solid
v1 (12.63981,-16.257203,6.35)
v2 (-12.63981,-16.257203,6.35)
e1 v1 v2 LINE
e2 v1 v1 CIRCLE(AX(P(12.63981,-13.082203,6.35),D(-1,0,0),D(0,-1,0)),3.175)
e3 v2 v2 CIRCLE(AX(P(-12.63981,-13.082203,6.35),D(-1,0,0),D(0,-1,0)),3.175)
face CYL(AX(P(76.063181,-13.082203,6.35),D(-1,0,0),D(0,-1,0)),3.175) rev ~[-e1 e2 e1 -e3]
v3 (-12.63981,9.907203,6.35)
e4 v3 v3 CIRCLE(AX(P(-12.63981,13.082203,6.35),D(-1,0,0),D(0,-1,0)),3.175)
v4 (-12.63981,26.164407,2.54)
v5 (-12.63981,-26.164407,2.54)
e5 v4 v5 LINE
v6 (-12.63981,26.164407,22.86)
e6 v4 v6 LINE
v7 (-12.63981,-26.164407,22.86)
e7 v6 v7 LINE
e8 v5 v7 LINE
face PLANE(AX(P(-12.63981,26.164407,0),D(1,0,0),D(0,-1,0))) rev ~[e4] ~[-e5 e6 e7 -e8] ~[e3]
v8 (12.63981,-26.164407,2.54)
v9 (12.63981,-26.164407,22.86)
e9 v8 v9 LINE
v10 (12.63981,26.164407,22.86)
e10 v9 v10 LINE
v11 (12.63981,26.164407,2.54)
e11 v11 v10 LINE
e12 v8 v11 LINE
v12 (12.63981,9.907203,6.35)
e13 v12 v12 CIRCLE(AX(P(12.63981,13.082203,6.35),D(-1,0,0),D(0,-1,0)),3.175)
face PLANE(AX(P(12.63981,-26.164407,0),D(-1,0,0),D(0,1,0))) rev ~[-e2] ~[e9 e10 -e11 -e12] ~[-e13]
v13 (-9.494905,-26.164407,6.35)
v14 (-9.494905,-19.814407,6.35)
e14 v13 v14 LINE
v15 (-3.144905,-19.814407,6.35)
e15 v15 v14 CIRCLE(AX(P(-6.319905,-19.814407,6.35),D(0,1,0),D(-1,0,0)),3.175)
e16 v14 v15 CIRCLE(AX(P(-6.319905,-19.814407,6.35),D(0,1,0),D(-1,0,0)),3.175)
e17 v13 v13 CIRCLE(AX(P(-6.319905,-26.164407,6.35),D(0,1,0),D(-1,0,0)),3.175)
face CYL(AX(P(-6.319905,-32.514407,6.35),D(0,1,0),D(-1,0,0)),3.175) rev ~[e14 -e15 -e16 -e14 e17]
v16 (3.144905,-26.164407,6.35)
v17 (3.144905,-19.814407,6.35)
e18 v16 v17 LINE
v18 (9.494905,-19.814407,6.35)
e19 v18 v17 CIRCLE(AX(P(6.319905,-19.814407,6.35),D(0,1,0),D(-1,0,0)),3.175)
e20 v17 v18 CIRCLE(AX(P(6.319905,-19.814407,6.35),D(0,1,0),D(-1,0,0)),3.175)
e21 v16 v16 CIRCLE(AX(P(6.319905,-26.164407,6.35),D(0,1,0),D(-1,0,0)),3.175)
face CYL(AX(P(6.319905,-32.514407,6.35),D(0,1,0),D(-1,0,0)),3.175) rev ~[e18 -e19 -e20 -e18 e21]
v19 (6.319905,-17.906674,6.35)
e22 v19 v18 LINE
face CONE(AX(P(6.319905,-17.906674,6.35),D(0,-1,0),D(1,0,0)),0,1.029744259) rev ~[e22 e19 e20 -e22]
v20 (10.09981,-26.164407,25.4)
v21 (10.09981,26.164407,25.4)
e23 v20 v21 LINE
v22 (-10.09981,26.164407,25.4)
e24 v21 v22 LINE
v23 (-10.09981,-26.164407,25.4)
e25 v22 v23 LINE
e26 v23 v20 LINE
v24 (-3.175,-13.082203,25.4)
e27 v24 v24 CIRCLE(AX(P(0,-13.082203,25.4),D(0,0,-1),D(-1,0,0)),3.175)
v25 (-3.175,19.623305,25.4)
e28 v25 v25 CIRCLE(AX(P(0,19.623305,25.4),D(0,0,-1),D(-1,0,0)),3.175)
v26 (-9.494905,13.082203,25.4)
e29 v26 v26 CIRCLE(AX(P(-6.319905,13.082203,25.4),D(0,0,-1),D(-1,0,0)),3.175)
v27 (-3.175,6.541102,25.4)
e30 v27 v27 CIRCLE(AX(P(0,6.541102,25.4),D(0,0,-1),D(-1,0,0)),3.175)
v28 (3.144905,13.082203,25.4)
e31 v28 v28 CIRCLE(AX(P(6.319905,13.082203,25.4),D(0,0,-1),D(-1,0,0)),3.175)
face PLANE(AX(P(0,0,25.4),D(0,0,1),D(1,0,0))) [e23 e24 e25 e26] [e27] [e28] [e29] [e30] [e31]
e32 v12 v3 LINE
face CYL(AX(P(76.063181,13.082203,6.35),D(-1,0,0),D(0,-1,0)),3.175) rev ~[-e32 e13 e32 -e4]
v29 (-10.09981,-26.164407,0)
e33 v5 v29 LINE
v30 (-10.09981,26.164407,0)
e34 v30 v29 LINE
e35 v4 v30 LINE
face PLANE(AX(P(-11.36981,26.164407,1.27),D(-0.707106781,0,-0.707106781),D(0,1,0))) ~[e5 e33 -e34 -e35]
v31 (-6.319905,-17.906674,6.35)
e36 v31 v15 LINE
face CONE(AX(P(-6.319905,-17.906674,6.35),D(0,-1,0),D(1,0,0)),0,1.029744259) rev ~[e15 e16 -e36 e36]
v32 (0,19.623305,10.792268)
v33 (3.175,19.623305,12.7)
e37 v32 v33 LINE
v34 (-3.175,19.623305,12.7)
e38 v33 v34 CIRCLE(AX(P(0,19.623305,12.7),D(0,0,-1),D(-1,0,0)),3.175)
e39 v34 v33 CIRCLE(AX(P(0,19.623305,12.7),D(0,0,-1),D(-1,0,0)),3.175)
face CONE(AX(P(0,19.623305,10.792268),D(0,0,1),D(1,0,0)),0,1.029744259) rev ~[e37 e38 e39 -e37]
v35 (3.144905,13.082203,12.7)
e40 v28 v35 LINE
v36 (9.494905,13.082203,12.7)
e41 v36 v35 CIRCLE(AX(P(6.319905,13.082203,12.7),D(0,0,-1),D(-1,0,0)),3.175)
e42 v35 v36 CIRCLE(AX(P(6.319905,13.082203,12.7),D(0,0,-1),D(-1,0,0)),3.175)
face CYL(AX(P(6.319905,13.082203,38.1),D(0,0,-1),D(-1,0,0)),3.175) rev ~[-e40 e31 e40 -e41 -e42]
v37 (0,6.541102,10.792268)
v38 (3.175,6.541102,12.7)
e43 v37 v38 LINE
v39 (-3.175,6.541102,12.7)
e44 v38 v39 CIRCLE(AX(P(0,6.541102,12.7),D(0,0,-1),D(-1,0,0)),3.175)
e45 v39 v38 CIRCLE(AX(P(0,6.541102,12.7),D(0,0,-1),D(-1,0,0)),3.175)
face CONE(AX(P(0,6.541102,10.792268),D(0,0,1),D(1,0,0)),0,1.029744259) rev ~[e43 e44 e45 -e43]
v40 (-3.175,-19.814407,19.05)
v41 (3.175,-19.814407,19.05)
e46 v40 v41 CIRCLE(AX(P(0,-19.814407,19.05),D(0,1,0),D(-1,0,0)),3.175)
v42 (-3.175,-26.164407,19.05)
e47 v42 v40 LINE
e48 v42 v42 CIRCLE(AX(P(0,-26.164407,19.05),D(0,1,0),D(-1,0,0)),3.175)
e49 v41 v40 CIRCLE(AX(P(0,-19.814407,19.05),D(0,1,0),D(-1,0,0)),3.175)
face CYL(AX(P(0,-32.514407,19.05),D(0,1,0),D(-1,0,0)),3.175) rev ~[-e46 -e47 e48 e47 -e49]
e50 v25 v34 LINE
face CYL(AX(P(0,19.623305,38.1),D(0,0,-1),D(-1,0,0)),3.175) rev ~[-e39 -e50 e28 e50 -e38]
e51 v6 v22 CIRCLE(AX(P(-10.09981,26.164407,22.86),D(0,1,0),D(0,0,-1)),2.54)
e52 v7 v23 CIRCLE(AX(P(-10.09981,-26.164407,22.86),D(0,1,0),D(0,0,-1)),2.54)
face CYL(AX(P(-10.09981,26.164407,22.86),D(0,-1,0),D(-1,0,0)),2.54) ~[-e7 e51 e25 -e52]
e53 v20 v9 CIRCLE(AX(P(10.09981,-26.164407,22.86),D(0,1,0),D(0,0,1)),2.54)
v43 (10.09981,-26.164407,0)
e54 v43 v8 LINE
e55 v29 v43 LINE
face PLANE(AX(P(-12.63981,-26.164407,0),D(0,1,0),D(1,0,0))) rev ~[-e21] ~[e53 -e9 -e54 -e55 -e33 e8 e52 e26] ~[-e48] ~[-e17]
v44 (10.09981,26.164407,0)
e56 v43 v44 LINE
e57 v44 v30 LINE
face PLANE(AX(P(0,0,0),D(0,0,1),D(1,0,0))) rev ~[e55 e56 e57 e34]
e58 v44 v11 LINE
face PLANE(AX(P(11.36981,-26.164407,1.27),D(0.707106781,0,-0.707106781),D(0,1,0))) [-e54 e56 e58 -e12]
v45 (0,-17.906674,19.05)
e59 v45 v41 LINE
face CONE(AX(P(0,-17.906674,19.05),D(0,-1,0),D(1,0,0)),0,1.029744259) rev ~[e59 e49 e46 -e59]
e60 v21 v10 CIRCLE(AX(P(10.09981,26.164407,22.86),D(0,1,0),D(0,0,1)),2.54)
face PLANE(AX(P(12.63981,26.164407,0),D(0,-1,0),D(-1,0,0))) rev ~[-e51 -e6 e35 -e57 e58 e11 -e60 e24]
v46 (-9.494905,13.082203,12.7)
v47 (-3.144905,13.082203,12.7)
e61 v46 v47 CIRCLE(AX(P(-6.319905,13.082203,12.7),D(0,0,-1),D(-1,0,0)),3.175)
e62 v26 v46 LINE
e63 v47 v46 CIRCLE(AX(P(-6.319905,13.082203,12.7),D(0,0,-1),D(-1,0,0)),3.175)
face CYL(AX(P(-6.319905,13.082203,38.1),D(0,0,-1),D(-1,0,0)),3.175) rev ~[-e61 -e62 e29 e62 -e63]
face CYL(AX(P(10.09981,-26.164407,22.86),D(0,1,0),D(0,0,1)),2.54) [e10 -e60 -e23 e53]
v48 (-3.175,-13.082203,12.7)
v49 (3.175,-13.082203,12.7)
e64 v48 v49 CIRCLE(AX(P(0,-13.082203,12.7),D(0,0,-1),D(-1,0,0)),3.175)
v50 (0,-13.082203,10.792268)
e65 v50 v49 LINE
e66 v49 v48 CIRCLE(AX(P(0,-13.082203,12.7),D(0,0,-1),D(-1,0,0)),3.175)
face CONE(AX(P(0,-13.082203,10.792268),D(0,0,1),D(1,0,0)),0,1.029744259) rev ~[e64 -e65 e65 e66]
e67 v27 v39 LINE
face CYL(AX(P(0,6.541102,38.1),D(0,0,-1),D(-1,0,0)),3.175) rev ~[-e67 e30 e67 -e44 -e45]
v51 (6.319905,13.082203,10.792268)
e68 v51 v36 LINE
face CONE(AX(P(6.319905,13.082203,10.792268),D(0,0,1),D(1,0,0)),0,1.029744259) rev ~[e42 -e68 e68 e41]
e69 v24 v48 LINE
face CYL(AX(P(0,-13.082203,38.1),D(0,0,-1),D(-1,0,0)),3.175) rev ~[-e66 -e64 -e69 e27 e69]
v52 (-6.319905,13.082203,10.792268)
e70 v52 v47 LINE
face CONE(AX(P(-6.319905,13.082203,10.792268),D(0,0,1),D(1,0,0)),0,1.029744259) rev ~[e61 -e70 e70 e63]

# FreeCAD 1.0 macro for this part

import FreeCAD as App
import Part
import Sketcher

V = App.Vector
Q = App.Units.Quantity


def edges_at(feature, points):
    """Names of the edges that pass closest to the given points."""
    edges = feature.Shape.Edges
    near = lambda p: min(range(len(edges)), key=lambda i: edges[i].distToShape(Part.Vertex(*p))[0])
    return sorted({f"Edge{near(p) + 1}" for p in points})

doc = App.newDocument("Part")
body = doc.addObject("PartDesign::Body", "Body")

# Sketch on XY plane
sketch1 = doc.addObject("Sketcher::SketchObject", "Sketch")
body.addObject(sketch1)
sketch1.AttachmentSupport = (doc.XY_Plane, [""])
sketch1.MapMode = "FlatFace"
sketch1.addGeometry([
    Part.LineSegment(V(-13, -26, 0), V(13, -26, 0)),
    Part.LineSegment(V(13, -26, 0), V(13, 26, 0)),
    Part.LineSegment(V(13, 26, 0), V(-13, 26, 0)),
    Part.LineSegment(V(-13, 26, 0), V(-13, -26, 0)),
], False)
sketch1.addConstraint([
    Sketcher.Constraint("Coincident", 0, 2, 1, 1),
    Sketcher.Constraint("Coincident", 1, 2, 2, 1),
    Sketcher.Constraint("Coincident", 2, 2, 3, 1),
    Sketcher.Constraint("Coincident", 3, 2, 0, 1),
    Sketcher.Constraint("Horizontal", 0),
    Sketcher.Constraint("Vertical", 1),
    Sketcher.Constraint("Horizontal", 2),
    Sketcher.Constraint("Vertical", 3),
    Sketcher.Constraint("Symmetric", 0, 2, 2, 2, -1, 1),
    Sketcher.Constraint("DistanceX", 0, 1, 0, 2, 25.279621),
    Sketcher.Constraint("DistanceY", 1, 1, 1, 2, 52.328814),
])
pad1 = doc.addObject("PartDesign::Pad", "Pad")
body.addObject(pad1)
pad1.Profile = sketch1
pad1.Length = Q("1 in")

# Sketch on YZ plane
sketch2 = doc.addObject("Sketcher::SketchObject", "Sketch001")
body.addObject(sketch2)
sketch2.AttachmentSupport = (doc.YZ_Plane, [""])
sketch2.MapMode = "FlatFace"
sketch2.AttachmentOffset = App.Placement(V(0, 0, 12.63981), App.Rotation())
sketch2.addGeometry([
    Part.Circle(V(-13.1, 6.3, 0), V(0, 0, 1), 3.2),
    Part.Circle(V(13.1, 6.3, 0), V(0, 0, 1), 3.2),
], False)
sketch2.addConstraint([
    Sketcher.Constraint("Equal", 0, 1),
    Sketcher.Constraint("Symmetric", 0, 3, 1, 3, -2),
    Sketcher.Constraint("Diameter", 0, Q("0.25 in")),
    Sketcher.Constraint("DistanceY", -1, 1, 0, 3, Q("0.25 in")),
    Sketcher.Constraint("DistanceX", 0, 3, -1, 1, 13.082203),
])
doc.recompute()
hole = doc.addObject("PartDesign::Hole", "Hole")
body.addObject(hole)
hole.Profile = sketch2
hole.ThreadType = "None"
hole.Diameter = Q("0.25 in")
hole.DepthType = "ThroughAll"

# Sketch on XZ plane
sketch3 = doc.addObject("Sketcher::SketchObject", "Sketch002")
body.addObject(sketch3)
sketch3.AttachmentSupport = (doc.XZ_Plane, [""])
sketch3.MapMode = "FlatFace"
sketch3.AttachmentOffset = App.Placement(V(0, 0, 26.164407), App.Rotation())
sketch3.addGeometry([
    Part.Circle(V(-6.3, 6.3, 0), V(0, 0, 1), 3.2),
    Part.Circle(V(6.3, 6.3, 0), V(0, 0, 1), 3.2),
    Part.Circle(V(0, 19.1, 0), V(0, 0, 1), 3.2),
], False)
sketch3.addConstraint([
    Sketcher.Constraint("Equal", 0, 1),
    Sketcher.Constraint("Equal", 1, 2),
    Sketcher.Constraint("Symmetric", 0, 3, 1, 3, -2),
    Sketcher.Constraint("PointOnObject", 2, 3, -2),
    Sketcher.Constraint("Diameter", 0, Q("0.25 in")),
    Sketcher.Constraint("DistanceY", 0, 3, 2, 3, Q("0.5 in")),
    Sketcher.Constraint("DistanceY", -1, 1, 0, 3, Q("0.25 in")),
    Sketcher.Constraint("DistanceX", 0, 3, 1, 3, 12.63981),
])
doc.recompute()
hole2 = doc.addObject("PartDesign::Hole", "Hole001")
body.addObject(hole2)
hole2.Profile = sketch3
hole2.ThreadType = "None"
hole2.Diameter = Q("0.25 in")
hole2.DepthType = "Dimension"
hole2.Depth = Q("0.25 in")
hole2.DrillPoint = "Angled"
hole2.DrillPointAngle = 118

# Sketch on XY plane
sketch4 = doc.addObject("Sketcher::SketchObject", "Sketch003")
body.addObject(sketch4)
sketch4.AttachmentSupport = (doc.XY_Plane, [""])
sketch4.MapMode = "FlatFace"
sketch4.AttachmentOffset = App.Placement(V(0, 0, 1 * 25.4), App.Rotation())
sketch4.addGeometry([
    Part.Circle(V(0, 19.6, 0), V(0, 0, 1), 3.2),  # 0
    Part.Circle(V(0, 6.5, 0), V(0, 0, 1), 3.2),  # 1
    Part.Circle(V(-6.3, 13.1, 0), V(0, 0, 1), 3.2),  # 2
    Part.Circle(V(6.3, 13.1, 0), V(0, 0, 1), 3.2),  # 3
    Part.Circle(V(0, -13.1, 0), V(0, 0, 1), 3.2),  # 4
], False)
sketch4.addConstraint([
    Sketcher.Constraint("Equal", 0, 1),
    Sketcher.Constraint("Equal", 1, 2),
    Sketcher.Constraint("Equal", 2, 3),
    Sketcher.Constraint("Equal", 3, 4),
    Sketcher.Constraint("Symmetric", 2, 3, 3, 3, -2),
    Sketcher.Constraint("PointOnObject", 0, 3, -2),
    Sketcher.Constraint("PointOnObject", 1, 3, -2),
    Sketcher.Constraint("PointOnObject", 4, 3, -2),
    Sketcher.Constraint("Diameter", 0, Q("0.25 in")),
    Sketcher.Constraint("DistanceY", -1, 1, 1, 3, 6.541102),
    Sketcher.Constraint("DistanceY", 1, 3, 2, 3, 6.541102),
    Sketcher.Constraint("DistanceY", 2, 3, 0, 3, 6.541102),
    Sketcher.Constraint("DistanceX", 2, 3, 3, 3, 12.63981),
    Sketcher.Constraint("DistanceY", 4, 3, 0, 3, 32.705509),
])
doc.recompute()
hole3 = doc.addObject("PartDesign::Hole", "Hole002")
body.addObject(hole3)
hole3.Profile = sketch4
hole3.ThreadType = "None"
hole3.Diameter = Q("0.25 in")
hole3.DepthType = "Dimension"
hole3.Depth = Q("0.5 in")
hole3.DrillPoint = "Angled"
hole3.DrillPointAngle = 118
doc.recompute()

fillet = doc.addObject("PartDesign::Fillet", "Fillet")
body.addObject(fillet)
fillet.Base = (hole3, edges_at(hole3, [(12.64, 0, 25.4), (-12.64, 0, 25.4)]))
fillet.Radius = Q("0.1 in")
doc.recompute()

chamfer = doc.addObject("PartDesign::Chamfer", "Chamfer")
body.addObject(chamfer)
chamfer.Base = (fillet, edges_at(fillet, [(-12.64, 0, 0), (12.64, 0, 0)]))
chamfer.Size = Q("0.1 in")

doc.recompute()
